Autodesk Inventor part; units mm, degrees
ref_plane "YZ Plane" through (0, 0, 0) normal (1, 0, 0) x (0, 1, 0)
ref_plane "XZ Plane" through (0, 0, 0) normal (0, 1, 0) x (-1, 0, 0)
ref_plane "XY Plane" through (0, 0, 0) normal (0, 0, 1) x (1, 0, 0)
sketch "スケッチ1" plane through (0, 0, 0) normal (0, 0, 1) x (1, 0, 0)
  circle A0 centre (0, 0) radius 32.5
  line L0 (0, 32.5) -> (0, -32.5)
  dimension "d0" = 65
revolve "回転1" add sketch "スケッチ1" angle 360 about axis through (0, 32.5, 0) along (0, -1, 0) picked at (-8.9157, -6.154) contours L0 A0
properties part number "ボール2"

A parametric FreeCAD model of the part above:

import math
import FreeCAD as App
import Part
import Sketcher

V = App.Vector
Q = App.Units.Quantity

doc = App.newDocument("Part")
body = doc.addObject("PartDesign::Body", "Body")

sketch1 = body.newObject("Sketcher::SketchObject", "Sketch")
sketch1.AttachmentSupport = (doc.getObject("XY_Plane"), [""])
sketch1.MapMode = "FlatFace"
sketch1.addGeometry(Part.LineSegment(V(0, -32, 0), V(0, 32, 0)), False)
sketch1.addGeometry(Part.ArcOfCircle(Part.Circle(V(0, 0, 0), V(0, 0, 1), 32), math.radians(90), math.radians(270)), False)
sketch1.addConstraint(Sketcher.Constraint("Coincident", 0, 1, 1, 2))
sketch1.addConstraint(Sketcher.Constraint("Coincident", 1, 1, 0, 2))
sketch1.addConstraint(Sketcher.Constraint("Vertical", 0))
sketch1.addConstraint(Sketcher.Constraint("Coincident", 1, 3, -1, 1))
sketch1.addConstraint(Sketcher.Constraint("PointOnObject", 0, 1, -2))
sketch1.addConstraint(Sketcher.Constraint("Radius", 1, Q("32.5 mm")))
revolution = body.newObject("PartDesign::Revolution", "Revolution")
revolution.Profile = sketch1
revolution.ReferenceAxis = (sketch1, ["V_Axis"])
revolution.Angle = 360

doc.recompute()
